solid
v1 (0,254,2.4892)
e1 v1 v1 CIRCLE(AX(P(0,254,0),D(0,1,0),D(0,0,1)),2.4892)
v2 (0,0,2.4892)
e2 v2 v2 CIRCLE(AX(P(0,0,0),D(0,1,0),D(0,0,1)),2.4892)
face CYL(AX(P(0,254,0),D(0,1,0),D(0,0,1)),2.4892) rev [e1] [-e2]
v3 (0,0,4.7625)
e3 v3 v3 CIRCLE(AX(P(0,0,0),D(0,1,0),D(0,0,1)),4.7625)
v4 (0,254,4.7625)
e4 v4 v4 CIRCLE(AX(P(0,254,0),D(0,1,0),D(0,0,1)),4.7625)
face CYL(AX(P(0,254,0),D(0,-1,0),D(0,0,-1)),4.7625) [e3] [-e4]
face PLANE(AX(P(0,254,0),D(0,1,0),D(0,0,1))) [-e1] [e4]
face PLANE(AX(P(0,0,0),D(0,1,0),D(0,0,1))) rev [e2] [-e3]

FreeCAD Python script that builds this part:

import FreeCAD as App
import Part
import Sketcher

V = App.Vector
Q = App.Units.Quantity

doc = App.newDocument("Part")
params = doc.addObject("Spreadsheet::Sheet", "Params")
for row, (alias, value) in enumerate([
    ("sketch1_diameter", "0.375 in"),
    ("pad1_length", "10 in"),
    ("sketch2_diameter", "0.196 in"),
    ("hole_diameter", "0.196 in"),
    ("hole_depth", "2059.43 mm"),
], start=1):
    params.set(f"A{row}", alias)
    params.set(f"B{row}", "=" + value)
    params.setAlias(f"B{row}", alias)

body = doc.addObject("PartDesign::Body", "Body")

sketch1 = doc.addObject("Sketcher::SketchObject", "Sketch")
body.addObject(sketch1)
sketch1.AttachmentSupport = (doc.XZ_Plane, [""])
sketch1.MapMode = "FlatFace"
sketch1.addGeometry(Part.Circle(V(0, 0, 0), V(0, 0, 1), 4.8), False)
sketch1.addConstraint(Sketcher.Constraint("Coincident", 0, 3, -1, 1))
sketch1.addConstraint(Sketcher.Constraint("Diameter", 0, Q("0.375 in")))
sketch1.setExpression("Constraints[1]", "Params.sketch1_diameter")
pad1 = doc.addObject("PartDesign::Pad", "Pad")
body.addObject(pad1)
pad1.Profile = sketch1
pad1.setExpression("Length", "Params.pad1_length")
pad1.Reversed = True

sketch2 = doc.addObject("Sketcher::SketchObject", "Sketch001")
body.addObject(sketch2)
sketch2.AttachmentSupport = (doc.XZ_Plane, [""])
sketch2.MapMode = "FlatFace"
sketch2.AttachmentOffset = App.Placement(V(0, 0, -10 * 25.4), App.Rotation())
sketch2.addGeometry(Part.Circle(V(0, 0, 0), V(0, 0, 1), 2.5), False)
sketch2.addConstraint(Sketcher.Constraint("Coincident", 0, 3, -1, 1))
sketch2.addConstraint(Sketcher.Constraint("Diameter", 0, Q("0.196 in")))
sketch2.setExpression("Constraints[1]", "Params.sketch2_diameter")
doc.recompute()
hole = doc.addObject("PartDesign::Hole", "Hole")
body.addObject(hole)
hole.Profile = sketch2
hole.ThreadType = "None"
hole.setExpression("Diameter", "Params.hole_diameter")
hole.DepthType = "Dimension"
hole.setExpression("Depth", "Params.hole_depth")
hole.DrillPoint = "Angled"
hole.DrillPointAngle = 118
hole.Reversed = True

doc.recompute()
